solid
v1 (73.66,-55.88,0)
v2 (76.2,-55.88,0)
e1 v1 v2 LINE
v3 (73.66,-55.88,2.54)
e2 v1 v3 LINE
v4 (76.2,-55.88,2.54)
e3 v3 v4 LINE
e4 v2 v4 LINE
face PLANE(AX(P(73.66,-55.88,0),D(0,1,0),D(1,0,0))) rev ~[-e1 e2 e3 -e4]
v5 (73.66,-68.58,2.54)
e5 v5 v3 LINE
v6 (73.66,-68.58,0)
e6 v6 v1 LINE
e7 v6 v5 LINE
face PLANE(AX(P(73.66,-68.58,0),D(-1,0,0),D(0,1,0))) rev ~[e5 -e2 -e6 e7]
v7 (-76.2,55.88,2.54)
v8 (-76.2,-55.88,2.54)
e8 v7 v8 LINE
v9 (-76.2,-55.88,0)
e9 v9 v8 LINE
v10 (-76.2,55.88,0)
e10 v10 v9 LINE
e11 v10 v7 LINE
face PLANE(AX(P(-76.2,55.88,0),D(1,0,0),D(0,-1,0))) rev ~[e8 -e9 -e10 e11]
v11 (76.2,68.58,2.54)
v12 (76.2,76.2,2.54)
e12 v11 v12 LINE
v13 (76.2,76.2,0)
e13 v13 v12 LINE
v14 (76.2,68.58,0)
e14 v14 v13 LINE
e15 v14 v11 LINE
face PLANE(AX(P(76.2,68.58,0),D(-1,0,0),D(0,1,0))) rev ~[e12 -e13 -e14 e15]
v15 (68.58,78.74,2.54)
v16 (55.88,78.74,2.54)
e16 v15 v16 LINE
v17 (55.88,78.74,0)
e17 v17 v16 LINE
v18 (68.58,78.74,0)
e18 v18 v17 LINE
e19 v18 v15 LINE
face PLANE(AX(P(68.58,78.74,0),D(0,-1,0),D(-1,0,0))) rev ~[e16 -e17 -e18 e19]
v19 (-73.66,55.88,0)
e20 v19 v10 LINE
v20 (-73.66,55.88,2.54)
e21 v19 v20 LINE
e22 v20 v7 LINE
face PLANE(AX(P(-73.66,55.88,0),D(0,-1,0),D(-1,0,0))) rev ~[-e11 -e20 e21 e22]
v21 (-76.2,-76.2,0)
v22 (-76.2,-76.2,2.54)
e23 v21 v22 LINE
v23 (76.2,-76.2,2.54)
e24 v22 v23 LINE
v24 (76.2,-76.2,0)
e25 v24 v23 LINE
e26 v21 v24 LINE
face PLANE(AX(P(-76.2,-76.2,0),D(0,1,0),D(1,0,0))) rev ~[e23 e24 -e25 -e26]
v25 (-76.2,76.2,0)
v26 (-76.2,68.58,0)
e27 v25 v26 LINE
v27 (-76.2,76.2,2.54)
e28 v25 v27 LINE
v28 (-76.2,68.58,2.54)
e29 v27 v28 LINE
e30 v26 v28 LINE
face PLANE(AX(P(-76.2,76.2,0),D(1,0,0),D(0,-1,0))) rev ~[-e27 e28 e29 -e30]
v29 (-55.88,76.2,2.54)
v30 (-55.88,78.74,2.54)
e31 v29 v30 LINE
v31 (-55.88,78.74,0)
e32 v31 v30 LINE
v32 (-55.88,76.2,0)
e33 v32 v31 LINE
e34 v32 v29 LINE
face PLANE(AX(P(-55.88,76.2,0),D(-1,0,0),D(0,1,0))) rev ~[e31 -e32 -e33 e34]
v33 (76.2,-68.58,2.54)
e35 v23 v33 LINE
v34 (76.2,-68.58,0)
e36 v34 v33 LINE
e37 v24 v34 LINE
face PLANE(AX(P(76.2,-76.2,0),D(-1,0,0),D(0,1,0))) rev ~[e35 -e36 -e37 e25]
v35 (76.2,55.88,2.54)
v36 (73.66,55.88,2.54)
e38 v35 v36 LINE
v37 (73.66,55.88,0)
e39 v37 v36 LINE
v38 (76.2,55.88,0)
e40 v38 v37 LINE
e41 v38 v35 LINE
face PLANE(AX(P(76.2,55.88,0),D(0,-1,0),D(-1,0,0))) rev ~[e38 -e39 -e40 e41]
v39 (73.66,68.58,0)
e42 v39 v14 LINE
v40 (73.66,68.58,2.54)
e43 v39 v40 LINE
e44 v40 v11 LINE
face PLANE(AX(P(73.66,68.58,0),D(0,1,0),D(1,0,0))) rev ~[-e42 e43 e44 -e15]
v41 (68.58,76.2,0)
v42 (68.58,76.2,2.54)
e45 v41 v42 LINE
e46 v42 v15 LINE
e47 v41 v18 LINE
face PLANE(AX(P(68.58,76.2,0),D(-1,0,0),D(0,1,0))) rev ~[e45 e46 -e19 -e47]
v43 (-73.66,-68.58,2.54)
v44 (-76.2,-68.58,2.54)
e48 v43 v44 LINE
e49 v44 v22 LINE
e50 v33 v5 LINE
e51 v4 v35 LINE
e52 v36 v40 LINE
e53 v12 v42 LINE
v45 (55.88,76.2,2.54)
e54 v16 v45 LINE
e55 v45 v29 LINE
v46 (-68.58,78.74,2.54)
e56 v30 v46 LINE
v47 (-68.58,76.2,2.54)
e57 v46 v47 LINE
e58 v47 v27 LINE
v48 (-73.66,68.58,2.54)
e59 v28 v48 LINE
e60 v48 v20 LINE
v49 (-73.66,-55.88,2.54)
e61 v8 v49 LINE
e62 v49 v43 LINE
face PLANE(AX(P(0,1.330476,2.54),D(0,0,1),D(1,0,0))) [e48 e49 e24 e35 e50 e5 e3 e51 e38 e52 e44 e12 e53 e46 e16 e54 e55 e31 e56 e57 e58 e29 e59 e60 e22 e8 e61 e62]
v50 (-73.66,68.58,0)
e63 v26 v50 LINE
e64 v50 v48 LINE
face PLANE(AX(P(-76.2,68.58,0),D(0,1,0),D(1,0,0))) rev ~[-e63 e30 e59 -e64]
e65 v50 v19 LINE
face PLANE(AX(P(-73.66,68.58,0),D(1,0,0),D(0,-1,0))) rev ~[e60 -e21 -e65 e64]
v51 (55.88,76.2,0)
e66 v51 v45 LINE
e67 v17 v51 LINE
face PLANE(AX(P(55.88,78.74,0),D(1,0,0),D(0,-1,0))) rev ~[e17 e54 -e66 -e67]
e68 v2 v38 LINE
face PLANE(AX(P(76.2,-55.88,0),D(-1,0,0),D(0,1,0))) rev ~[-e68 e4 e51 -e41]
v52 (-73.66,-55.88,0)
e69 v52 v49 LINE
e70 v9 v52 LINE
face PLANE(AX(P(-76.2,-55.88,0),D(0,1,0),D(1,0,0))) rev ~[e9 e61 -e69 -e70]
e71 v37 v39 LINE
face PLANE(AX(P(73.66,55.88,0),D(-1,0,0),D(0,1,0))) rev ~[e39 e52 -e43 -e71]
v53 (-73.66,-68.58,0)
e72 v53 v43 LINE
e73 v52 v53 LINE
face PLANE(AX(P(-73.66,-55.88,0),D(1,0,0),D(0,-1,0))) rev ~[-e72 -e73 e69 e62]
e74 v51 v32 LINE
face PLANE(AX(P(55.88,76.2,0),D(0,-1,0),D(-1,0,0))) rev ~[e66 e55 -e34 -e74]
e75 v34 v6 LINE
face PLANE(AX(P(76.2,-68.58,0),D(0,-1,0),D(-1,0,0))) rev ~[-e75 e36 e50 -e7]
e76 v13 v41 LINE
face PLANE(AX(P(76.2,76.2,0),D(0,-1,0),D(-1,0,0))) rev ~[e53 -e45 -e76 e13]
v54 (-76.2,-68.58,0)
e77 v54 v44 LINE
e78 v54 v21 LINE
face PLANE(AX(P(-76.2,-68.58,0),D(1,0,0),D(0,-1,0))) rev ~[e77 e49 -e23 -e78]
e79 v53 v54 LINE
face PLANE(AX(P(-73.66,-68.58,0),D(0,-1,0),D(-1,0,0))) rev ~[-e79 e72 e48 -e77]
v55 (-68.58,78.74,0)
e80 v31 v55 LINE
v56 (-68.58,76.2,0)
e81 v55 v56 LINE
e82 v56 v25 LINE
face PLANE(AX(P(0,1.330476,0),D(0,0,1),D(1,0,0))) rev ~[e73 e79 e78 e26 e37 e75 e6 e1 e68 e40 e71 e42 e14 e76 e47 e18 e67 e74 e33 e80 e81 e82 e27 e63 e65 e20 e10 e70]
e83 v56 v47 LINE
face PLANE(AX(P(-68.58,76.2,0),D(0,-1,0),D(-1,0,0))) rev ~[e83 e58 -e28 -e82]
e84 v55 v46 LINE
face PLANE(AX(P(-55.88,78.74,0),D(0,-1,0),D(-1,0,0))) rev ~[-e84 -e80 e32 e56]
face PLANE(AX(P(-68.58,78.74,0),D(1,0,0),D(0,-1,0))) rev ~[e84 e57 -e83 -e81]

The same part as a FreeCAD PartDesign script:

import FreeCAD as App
import Part
import Sketcher
from FreeCAD import Vector
Q = App.Units.Quantity


def add_polygon(sketch, points):
    """Adds a closed chain of lines whose ends are joined by coincident constraints."""
    first, n = sketch.GeometryCount, len(points)
    for a, b in zip(points, points[1:] + points[:1]):
        sketch.addGeometry(Part.LineSegment(App.Vector(*a, 0), App.Vector(*b, 0)), False)
    for i in range(n):
        sketch.addConstraint(Sketcher.Constraint("Coincident", first + i, 2, first + (i + 1) % n, 1))

doc = App.newDocument("Part")
params = doc.addObject("Spreadsheet::Sheet", "Params")
for row, (alias, value) in enumerate([
    ("sketch1_width", "6 in"),
    ("sketch1_width2", "0.1 in"),
    ("sketch1_width3", "0.3 in"),
    ("sketch1_width4", "0.5 in"),
    ("pad1_length", "0.1 in"),
], start=1):
    params.set(f"A{row}", alias)
    params.set(f"B{row}", "=" + value)
    params.setAlias(f"B{row}", alias)

body = doc.addObject("PartDesign::Body", "Body")

# Sketch on XY plane
sketch1 = body.newObject("Sketcher::SketchObject", "Sketch")
sketch1.AttachmentSupport = (doc.getObject("XY_Plane"), [""])
sketch1.MapMode = "FlatFace"
add_polygon(sketch1, [(-76.2, -76.2), (76.2, -76.2), (76.2, -68.6), (73.7, -68.6), (73.7, -55.9), (76.2, -55.9), (76.2, 55.9), (73.7, 55.9), (73.7, 68.6), (76.2, 68.6), (76.2, 76.2), (68.6, 76.2), (68.6, 78.7), (55.9, 78.7), (55.9, 76.2), (-55.9, 76.2), (-55.9, 78.7), (-68.6, 78.7), (-68.6, 76.2), (-76.2, 76.2), (-76.2, 68.6), (-73.7, 68.6), (-73.7, 55.9), (-76.2, 55.9), (-76.2, -55.9), (-73.7, -55.9), (-73.7, -68.6), (-76.2, -68.6)])  # lines 0-27
sketch1.addConstraint([
    Sketcher.Constraint("Horizontal", 0),
    Sketcher.Constraint("Vertical", 1),
    Sketcher.Constraint("Horizontal", 2),
    Sketcher.Constraint("Vertical", 3),
    Sketcher.Constraint("Horizontal", 4),
    Sketcher.Constraint("Vertical", 5),
    Sketcher.Constraint("Horizontal", 6),
    Sketcher.Constraint("Vertical", 7),
    Sketcher.Constraint("Horizontal", 8),
    Sketcher.Constraint("Vertical", 9),
    Sketcher.Constraint("Horizontal", 10),
    Sketcher.Constraint("Vertical", 11),
    Sketcher.Constraint("Horizontal", 12),
    Sketcher.Constraint("Vertical", 13),
    Sketcher.Constraint("Horizontal", 14),
    Sketcher.Constraint("Vertical", 15),
    Sketcher.Constraint("Horizontal", 16),
    Sketcher.Constraint("Vertical", 17),
    Sketcher.Constraint("Horizontal", 18),
    Sketcher.Constraint("Vertical", 19),
    Sketcher.Constraint("Horizontal", 20),
    Sketcher.Constraint("Vertical", 21),
    Sketcher.Constraint("Horizontal", 22),
    Sketcher.Constraint("Vertical", 23),
    Sketcher.Constraint("Horizontal", 24),
    Sketcher.Constraint("Vertical", 25),
    Sketcher.Constraint("Horizontal", 26),
    Sketcher.Constraint("Vertical", 27),
    Sketcher.Constraint("Symmetric", 0, 2, 18, 2, -1, 1),
    Sketcher.Constraint("Symmetric", 2, 2, 20, 2, -1, 1),
    Sketcher.Constraint("Symmetric", 4, 2, 22, 2, -1, 1),
    Sketcher.Constraint("Symmetric", 6, 2, 24, 2, -1, 1),
    Sketcher.Constraint("Symmetric", 8, 2, 26, 2, -1, 1),
    Sketcher.Constraint("Symmetric", 12, 2, 15, 2, -2),
    Sketcher.Constraint("Symmetric", 10, 2, 17, 2, -2),
    Sketcher.Constraint("Symmetric", 8, 2, 19, 2, -2),
    Sketcher.Constraint("Symmetric", 6, 2, 21, 2, -2),
    Sketcher.Constraint("Horizontal", 10, 2, 13, 2),
    Sketcher.Constraint("Vertical", 1, 2, 4, 2),
    Sketcher.Constraint("Equal", 18, 1),
    Sketcher.Constraint("Equal", 16, 3),
    Sketcher.Constraint("Equal", 14, 5),
    Sketcher.Constraint("Equal", 26, 11),
    Sketcher.Constraint("DistanceX", 0, 1, 0, 2, Q("6 in")),
    Sketcher.Constraint("DistanceX", 2, 2, 2, 1, Q("0.1 in")),
    Sketcher.Constraint("DistanceX", 10, 2, 10, 1, Q("0.3 in")),
    Sketcher.Constraint("DistanceX", 12, 2, 12, 1, Q("0.5 in")),
])
sketch1.setExpression("Constraints[71]", "Params.sketch1_width")
sketch1.setExpression("Constraints[72]", "Params.sketch1_width2")
sketch1.setExpression("Constraints[73]", "Params.sketch1_width3")
sketch1.setExpression("Constraints[74]", "Params.sketch1_width4")
pad1 = body.newObject("PartDesign::Pad", "Pad")
pad1.Profile = sketch1
pad1.setExpression("Length", "Params.pad1_length")

doc.recompute()
